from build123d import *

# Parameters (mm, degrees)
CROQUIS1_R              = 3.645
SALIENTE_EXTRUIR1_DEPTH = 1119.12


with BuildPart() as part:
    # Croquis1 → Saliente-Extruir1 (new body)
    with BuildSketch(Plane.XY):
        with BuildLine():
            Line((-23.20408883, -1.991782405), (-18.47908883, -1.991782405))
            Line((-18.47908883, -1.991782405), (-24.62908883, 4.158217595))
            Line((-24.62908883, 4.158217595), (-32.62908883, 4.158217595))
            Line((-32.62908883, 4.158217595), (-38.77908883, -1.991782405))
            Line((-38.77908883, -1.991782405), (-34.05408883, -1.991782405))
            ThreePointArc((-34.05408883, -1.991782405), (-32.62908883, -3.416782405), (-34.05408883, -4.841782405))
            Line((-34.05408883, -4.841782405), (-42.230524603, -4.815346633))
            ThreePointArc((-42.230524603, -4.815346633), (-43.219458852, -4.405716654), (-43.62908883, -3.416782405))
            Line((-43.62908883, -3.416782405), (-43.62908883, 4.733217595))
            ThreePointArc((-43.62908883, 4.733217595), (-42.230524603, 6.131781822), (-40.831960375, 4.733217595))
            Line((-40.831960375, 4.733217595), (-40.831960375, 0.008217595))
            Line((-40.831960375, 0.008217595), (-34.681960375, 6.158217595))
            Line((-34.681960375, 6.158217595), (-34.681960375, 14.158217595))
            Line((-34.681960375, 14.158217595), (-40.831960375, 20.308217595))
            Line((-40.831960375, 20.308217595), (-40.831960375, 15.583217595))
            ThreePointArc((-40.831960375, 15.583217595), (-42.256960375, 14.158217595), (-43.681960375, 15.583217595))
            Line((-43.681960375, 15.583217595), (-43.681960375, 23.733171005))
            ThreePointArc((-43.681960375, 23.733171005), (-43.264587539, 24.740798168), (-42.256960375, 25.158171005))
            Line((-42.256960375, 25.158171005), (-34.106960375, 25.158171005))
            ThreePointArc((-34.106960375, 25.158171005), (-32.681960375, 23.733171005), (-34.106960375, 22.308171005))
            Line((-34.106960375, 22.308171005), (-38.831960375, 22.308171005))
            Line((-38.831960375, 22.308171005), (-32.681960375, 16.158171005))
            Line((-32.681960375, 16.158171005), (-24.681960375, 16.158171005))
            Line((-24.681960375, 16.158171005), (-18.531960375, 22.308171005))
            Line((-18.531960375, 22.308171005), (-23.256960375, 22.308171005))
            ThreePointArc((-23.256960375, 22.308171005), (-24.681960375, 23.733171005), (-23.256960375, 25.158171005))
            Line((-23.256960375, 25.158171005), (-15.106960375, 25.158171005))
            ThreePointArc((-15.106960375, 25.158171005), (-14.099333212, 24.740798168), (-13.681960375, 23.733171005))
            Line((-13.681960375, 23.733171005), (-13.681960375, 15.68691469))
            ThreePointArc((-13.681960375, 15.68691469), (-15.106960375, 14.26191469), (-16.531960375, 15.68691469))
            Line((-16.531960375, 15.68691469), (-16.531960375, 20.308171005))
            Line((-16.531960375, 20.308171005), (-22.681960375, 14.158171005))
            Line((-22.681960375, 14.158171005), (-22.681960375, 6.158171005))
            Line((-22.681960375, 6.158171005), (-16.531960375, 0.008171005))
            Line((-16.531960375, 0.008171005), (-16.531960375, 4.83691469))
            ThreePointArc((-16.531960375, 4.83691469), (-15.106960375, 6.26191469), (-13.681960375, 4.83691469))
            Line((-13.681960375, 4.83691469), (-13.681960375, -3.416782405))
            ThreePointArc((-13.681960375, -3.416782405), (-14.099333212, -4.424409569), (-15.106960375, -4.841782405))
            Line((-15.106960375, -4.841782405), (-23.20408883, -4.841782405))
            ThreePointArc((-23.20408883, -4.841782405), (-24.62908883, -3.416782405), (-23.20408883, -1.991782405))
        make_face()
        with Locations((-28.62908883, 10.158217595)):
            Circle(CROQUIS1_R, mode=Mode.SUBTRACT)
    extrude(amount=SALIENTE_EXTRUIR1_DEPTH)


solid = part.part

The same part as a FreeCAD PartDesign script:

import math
import FreeCAD as App
import Part
import Sketcher
from FreeCAD import Vector

doc = App.newDocument("Part")
body = doc.addObject("PartDesign::Body", "Body")

sketch1 = doc.addObject("Sketcher::SketchObject", "Sketch")
body.addObject(sketch1)
sketch1.AttachmentSupport = (doc.XY_Plane, [""])
sketch1.MapMode = "FlatFace"
sketch1.addGeometry([
    Part.LineSegment(Vector(-18.479089, -1.991782, 0), Vector(-23.204089, -1.991782, 0)),
    Part.ArcOfCircle(Part.Circle(Vector(-23.204089, -3.416782, 0), Vector(0, 0, 1), 1.425), math.radians(90), math.radians(270)),
    Part.LineSegment(Vector(-23.204089, -4.841782, 0), Vector(-15.10696, -4.841782, 0)),
    Part.ArcOfCircle(Part.Circle(Vector(-15.10696, -3.416782, 0), Vector(0, 0, 1), 1.425), math.radians(-90), math.radians(0)),
    Part.LineSegment(Vector(-13.68196, -3.416782, 0), Vector(-13.68196, 4.836915, 0)),
    Part.ArcOfCircle(Part.Circle(Vector(-15.10696, 4.836915, 0), Vector(0, 0, 1), 1.425), math.radians(0), math.radians(180)),
    Part.LineSegment(Vector(-16.53196, 4.836915, 0), Vector(-16.53196, 0.008171, 0)),
    Part.LineSegment(Vector(-16.53196, 0.008171, 0), Vector(-22.68196, 6.158171, 0)),
    Part.LineSegment(Vector(-22.68196, 6.158171, 0), Vector(-22.68196, 14.158171, 0)),
    Part.LineSegment(Vector(-22.68196, 14.158171, 0), Vector(-16.53196, 20.308171, 0)),
    Part.LineSegment(Vector(-16.53196, 20.308171, 0), Vector(-16.53196, 15.686915, 0)),
    Part.ArcOfCircle(Part.Circle(Vector(-15.10696, 15.686915, 0), Vector(0, 0, 1), 1.425), math.radians(180), math.radians(360)),
    Part.LineSegment(Vector(-13.68196, 15.686915, 0), Vector(-13.68196, 23.733171, 0)),
    Part.ArcOfCircle(Part.Circle(Vector(-15.10696, 23.733171, 0), Vector(0, 0, 1), 1.425), math.radians(0), math.radians(90)),
    Part.LineSegment(Vector(-15.10696, 25.158171, 0), Vector(-23.25696, 25.158171, 0)),
    Part.ArcOfCircle(Part.Circle(Vector(-23.25696, 23.733171, 0), Vector(0, 0, 1), 1.425), math.radians(90), math.radians(270)),
    Part.LineSegment(Vector(-23.25696, 22.308171, 0), Vector(-18.53196, 22.308171, 0)),
    Part.LineSegment(Vector(-18.53196, 22.308171, 0), Vector(-24.68196, 16.158171, 0)),
    Part.LineSegment(Vector(-24.68196, 16.158171, 0), Vector(-32.68196, 16.158171, 0)),
    Part.LineSegment(Vector(-32.68196, 16.158171, 0), Vector(-38.83196, 22.308171, 0)),
    Part.LineSegment(Vector(-38.83196, 22.308171, 0), Vector(-34.10696, 22.308171, 0)),
    Part.ArcOfCircle(Part.Circle(Vector(-34.10696, 23.733171, 0), Vector(0, 0, 1), 1.425), math.radians(-90), math.radians(90)),
    Part.LineSegment(Vector(-34.10696, 25.158171, 0), Vector(-42.25696, 25.158171, 0)),
    Part.ArcOfCircle(Part.Circle(Vector(-42.25696, 23.733171, 0), Vector(0, 0, 1), 1.425), math.radians(90), math.radians(180)),
    Part.LineSegment(Vector(-43.68196, 23.733171, 0), Vector(-43.68196, 15.583218, 0)),
    Part.ArcOfCircle(Part.Circle(Vector(-42.25696, 15.583218, 0), Vector(0, 0, 1), 1.425), math.radians(180), math.radians(360)),
    Part.LineSegment(Vector(-40.83196, 15.583218, 0), Vector(-40.83196, 20.308218, 0)),
    Part.LineSegment(Vector(-40.83196, 20.308218, 0), Vector(-34.68196, 14.158218, 0)),
    Part.LineSegment(Vector(-34.68196, 14.158218, 0), Vector(-34.68196, 6.158218, 0)),
    Part.LineSegment(Vector(-34.68196, 6.158218, 0), Vector(-40.83196, 0.008218, 0)),
    Part.LineSegment(Vector(-40.83196, 0.008218, 0), Vector(-40.83196, 4.733218, 0)),
    Part.ArcOfCircle(Part.Circle(Vector(-42.230525, 4.733218, 0), Vector(0, 0, 1), 1.398564), math.radians(0), math.radians(180)),
    Part.LineSegment(Vector(-43.629089, 4.733218, 0), Vector(-43.629089, -3.416782, 0)),
    Part.ArcOfCircle(Part.Circle(Vector(-42.230525, -3.416782, 0), Vector(0, 0, 1), 1.398564), math.radians(180), math.radians(270)),
    Part.LineSegment(Vector(-42.230525, -4.815347, 0), Vector(-34.054089, -4.841782, 0)),
    Part.ArcOfCircle(Part.Circle(Vector(-34.054089, -3.416782, 0), Vector(0, 0, 1), 1.425), math.radians(-90), math.radians(90)),
    Part.LineSegment(Vector(-34.054089, -1.991782, 0), Vector(-38.779089, -1.991782, 0)),
    Part.LineSegment(Vector(-38.779089, -1.991782, 0), Vector(-32.629089, 4.158218, 0)),
    Part.LineSegment(Vector(-32.629089, 4.158218, 0), Vector(-24.629089, 4.158218, 0)),
    Part.LineSegment(Vector(-24.629089, 4.158218, 0), Vector(-18.479089, -1.991782, 0)),
    Part.Circle(Vector(-28.629089, 10.158218, 0), Vector(0, 0, 1), 3.645),
], False)
sketch1.addConstraint([
    Sketcher.Constraint("Tangent", 0, 2, 1, 1),
    Sketcher.Constraint("Tangent", 1, 2, 2, 1),
    Sketcher.Constraint("Tangent", 2, 2, 3, 1),
    Sketcher.Constraint("Tangent", 3, 2, 4, 1),
    Sketcher.Constraint("Tangent", 4, 2, 5, 1),
    Sketcher.Constraint("Tangent", 5, 2, 6, 1),
    Sketcher.Constraint("Coincident", 6, 2, 7, 1),
    Sketcher.Constraint("Coincident", 7, 2, 8, 1),
    Sketcher.Constraint("Coincident", 8, 2, 9, 1),
    Sketcher.Constraint("Coincident", 9, 2, 10, 1),
    Sketcher.Constraint("Tangent", 10, 2, 11, 1),
    Sketcher.Constraint("Tangent", 11, 2, 12, 1),
    Sketcher.Constraint("Tangent", 12, 2, 13, 1),
    Sketcher.Constraint("Tangent", 13, 2, 14, 1),
    Sketcher.Constraint("Tangent", 14, 2, 15, 1),
    Sketcher.Constraint("Tangent", 15, 2, 16, 1),
    Sketcher.Constraint("Coincident", 16, 2, 17, 1),
    Sketcher.Constraint("Coincident", 17, 2, 18, 1),
    Sketcher.Constraint("Coincident", 18, 2, 19, 1),
    Sketcher.Constraint("Coincident", 19, 2, 20, 1),
    Sketcher.Constraint("Tangent", 20, 2, 21, 1),
    Sketcher.Constraint("Tangent", 21, 2, 22, 1),
    Sketcher.Constraint("Tangent", 22, 2, 23, 1),
    Sketcher.Constraint("Tangent", 23, 2, 24, 1),
    Sketcher.Constraint("Tangent", 24, 2, 25, 1),
    Sketcher.Constraint("Tangent", 25, 2, 26, 1),
    Sketcher.Constraint("Coincident", 26, 2, 27, 1),
    Sketcher.Constraint("Coincident", 27, 2, 28, 1),
    Sketcher.Constraint("Coincident", 28, 2, 29, 1),
    Sketcher.Constraint("Coincident", 29, 2, 30, 1),
    Sketcher.Constraint("Tangent", 30, 2, 31, 1),
    Sketcher.Constraint("Tangent", 31, 2, 32, 1),
    Sketcher.Constraint("Tangent", 32, 2, 33, 1),
    Sketcher.Constraint("Coincident", 33, 2, 34, 1),
    Sketcher.Constraint("Coincident", 34, 2, 35, 1),
    Sketcher.Constraint("Tangent", 35, 2, 36, 1),
    Sketcher.Constraint("Coincident", 36, 2, 37, 1),
    Sketcher.Constraint("Coincident", 37, 2, 38, 1),
    Sketcher.Constraint("Coincident", 38, 2, 39, 1),
    Sketcher.Constraint("Coincident", 39, 2, 0, 1),
    Sketcher.Constraint("Horizontal", 0),
    Sketcher.Constraint("Horizontal", 2),
    Sketcher.Constraint("Vertical", 4),
    Sketcher.Constraint("Vertical", 6),
    Sketcher.Constraint("Vertical", 8),
    Sketcher.Constraint("Vertical", 10),
    Sketcher.Constraint("Vertical", 12),
    Sketcher.Constraint("Horizontal", 14),
    Sketcher.Constraint("Horizontal", 16),
    Sketcher.Constraint("Horizontal", 18),
    Sketcher.Constraint("Horizontal", 20),
    Sketcher.Constraint("Horizontal", 22),
    Sketcher.Constraint("Vertical", 24),
    Sketcher.Constraint("Vertical", 26),
    Sketcher.Constraint("Vertical", 28),
    Sketcher.Constraint("Vertical", 30),
    Sketcher.Constraint("Vertical", 32),
    Sketcher.Constraint("Horizontal", 36),
    Sketcher.Constraint("Horizontal", 38),
    Sketcher.Constraint("Equal", 1, 3),
    Sketcher.Constraint("Equal", 3, 5),
    Sketcher.Constraint("Equal", 5, 11),
    Sketcher.Constraint("Equal", 11, 13),
    Sketcher.Constraint("Equal", 13, 15),
    Sketcher.Constraint("Equal", 15, 21),
    Sketcher.Constraint("Equal", 21, 23),
    Sketcher.Constraint("Equal", 23, 25),
    Sketcher.Constraint("Equal", 31, 33),
    Sketcher.Constraint("Equal", 25, 35),
    Sketcher.Constraint("Perpendicular", 7, 9),
    Sketcher.Constraint("Parallel", 9, 17),
    Sketcher.Constraint("Perpendicular", 17, 19),
    Sketcher.Constraint("Parallel", 19, 27),
    Sketcher.Constraint("Perpendicular", 27, 29),
    Sketcher.Constraint("Parallel", 29, 37),
    Sketcher.Constraint("Perpendicular", 37, 39),
    Sketcher.Constraint("Horizontal", 15, 3, 21, 3),
    Sketcher.Constraint("Horizontal", 3, 3, 33, 3),
    Sketcher.Constraint("Horizontal", 33, 3, 35, 3),
    Sketcher.Constraint("Vertical", 5, 3, 11, 3),
    Sketcher.Constraint("Vertical", 26, 2, 29, 2),
    Sketcher.Constraint("Vertical", 31, 3, 33, 2),
    Sketcher.Constraint("Vertical", 35, 3, 34, 2),
    Sketcher.Constraint("Equal", 0, 16),
    Sketcher.Constraint("Equal", 16, 20),
    Sketcher.Constraint("Equal", 14, 22),
    Sketcher.Constraint("Equal", 20, 36),
    Sketcher.Constraint("Equal", 18, 38),
    Sketcher.Constraint("Equal", 38, 8),
    Sketcher.Constraint("Equal", 36, 26),
    Sketcher.Constraint("Equal", 8, 28),
    Sketcher.Constraint("Equal", 26, 30),
    Sketcher.Constraint("Equal", 22, 32),
    Sketcher.Constraint("Equal", 7, 9),
    Sketcher.Constraint("Equal", 9, 17),
    Sketcher.Constraint("Equal", 19, 27),
    Sketcher.Constraint("Equal", 29, 37),
    Sketcher.Constraint("Diameter", 40, 7.29),
    Sketcher.Constraint("DistanceX", 18, 2, 18, 1, 8.0),
    Sketcher.Constraint("Radius", 1, 1.425),
    Sketcher.Constraint("DistanceX", 21, 3, 13, 3, 19.0),
    Sketcher.Constraint("DistanceX", 8, 2, 11, 2, 9.0),
    Sketcher.Constraint("DistanceY", 9, 2, 15, 2, 2.0),
    Sketcher.Constraint("DistanceX", 16, 2, 9, 2, 2.0),
    Sketcher.Constraint("DistanceY", 40, 3, 27, 2, 4.0),
    Sketcher.Constraint("DistanceX", 37, 2, 40, 3, 4.0),
    Sketcher.Constraint("DistanceY", 5, 3, 11, 3, 10.85),
    Sketcher.Constraint("Radius", 31, 1.398564),
    Sketcher.Constraint("DistanceX", 32, 2, 34, 2, 9.575),
    Sketcher.Constraint("DistanceY", 4, 1, 4, 2, 8.253697),
    Sketcher.Constraint("DistanceY", 6, 2, 6, 1, 4.828744),
    Sketcher.Constraint("DistanceX", 1, 3, -1, 1, 23.204089),
    Sketcher.Constraint("DistanceY", -1, 1, 13, 3, 23.733171),
])
pad1 = doc.addObject("PartDesign::Pad", "Pad")
body.addObject(pad1)
pad1.Profile = sketch1
pad1.Length = 1119.12

doc.recompute()
